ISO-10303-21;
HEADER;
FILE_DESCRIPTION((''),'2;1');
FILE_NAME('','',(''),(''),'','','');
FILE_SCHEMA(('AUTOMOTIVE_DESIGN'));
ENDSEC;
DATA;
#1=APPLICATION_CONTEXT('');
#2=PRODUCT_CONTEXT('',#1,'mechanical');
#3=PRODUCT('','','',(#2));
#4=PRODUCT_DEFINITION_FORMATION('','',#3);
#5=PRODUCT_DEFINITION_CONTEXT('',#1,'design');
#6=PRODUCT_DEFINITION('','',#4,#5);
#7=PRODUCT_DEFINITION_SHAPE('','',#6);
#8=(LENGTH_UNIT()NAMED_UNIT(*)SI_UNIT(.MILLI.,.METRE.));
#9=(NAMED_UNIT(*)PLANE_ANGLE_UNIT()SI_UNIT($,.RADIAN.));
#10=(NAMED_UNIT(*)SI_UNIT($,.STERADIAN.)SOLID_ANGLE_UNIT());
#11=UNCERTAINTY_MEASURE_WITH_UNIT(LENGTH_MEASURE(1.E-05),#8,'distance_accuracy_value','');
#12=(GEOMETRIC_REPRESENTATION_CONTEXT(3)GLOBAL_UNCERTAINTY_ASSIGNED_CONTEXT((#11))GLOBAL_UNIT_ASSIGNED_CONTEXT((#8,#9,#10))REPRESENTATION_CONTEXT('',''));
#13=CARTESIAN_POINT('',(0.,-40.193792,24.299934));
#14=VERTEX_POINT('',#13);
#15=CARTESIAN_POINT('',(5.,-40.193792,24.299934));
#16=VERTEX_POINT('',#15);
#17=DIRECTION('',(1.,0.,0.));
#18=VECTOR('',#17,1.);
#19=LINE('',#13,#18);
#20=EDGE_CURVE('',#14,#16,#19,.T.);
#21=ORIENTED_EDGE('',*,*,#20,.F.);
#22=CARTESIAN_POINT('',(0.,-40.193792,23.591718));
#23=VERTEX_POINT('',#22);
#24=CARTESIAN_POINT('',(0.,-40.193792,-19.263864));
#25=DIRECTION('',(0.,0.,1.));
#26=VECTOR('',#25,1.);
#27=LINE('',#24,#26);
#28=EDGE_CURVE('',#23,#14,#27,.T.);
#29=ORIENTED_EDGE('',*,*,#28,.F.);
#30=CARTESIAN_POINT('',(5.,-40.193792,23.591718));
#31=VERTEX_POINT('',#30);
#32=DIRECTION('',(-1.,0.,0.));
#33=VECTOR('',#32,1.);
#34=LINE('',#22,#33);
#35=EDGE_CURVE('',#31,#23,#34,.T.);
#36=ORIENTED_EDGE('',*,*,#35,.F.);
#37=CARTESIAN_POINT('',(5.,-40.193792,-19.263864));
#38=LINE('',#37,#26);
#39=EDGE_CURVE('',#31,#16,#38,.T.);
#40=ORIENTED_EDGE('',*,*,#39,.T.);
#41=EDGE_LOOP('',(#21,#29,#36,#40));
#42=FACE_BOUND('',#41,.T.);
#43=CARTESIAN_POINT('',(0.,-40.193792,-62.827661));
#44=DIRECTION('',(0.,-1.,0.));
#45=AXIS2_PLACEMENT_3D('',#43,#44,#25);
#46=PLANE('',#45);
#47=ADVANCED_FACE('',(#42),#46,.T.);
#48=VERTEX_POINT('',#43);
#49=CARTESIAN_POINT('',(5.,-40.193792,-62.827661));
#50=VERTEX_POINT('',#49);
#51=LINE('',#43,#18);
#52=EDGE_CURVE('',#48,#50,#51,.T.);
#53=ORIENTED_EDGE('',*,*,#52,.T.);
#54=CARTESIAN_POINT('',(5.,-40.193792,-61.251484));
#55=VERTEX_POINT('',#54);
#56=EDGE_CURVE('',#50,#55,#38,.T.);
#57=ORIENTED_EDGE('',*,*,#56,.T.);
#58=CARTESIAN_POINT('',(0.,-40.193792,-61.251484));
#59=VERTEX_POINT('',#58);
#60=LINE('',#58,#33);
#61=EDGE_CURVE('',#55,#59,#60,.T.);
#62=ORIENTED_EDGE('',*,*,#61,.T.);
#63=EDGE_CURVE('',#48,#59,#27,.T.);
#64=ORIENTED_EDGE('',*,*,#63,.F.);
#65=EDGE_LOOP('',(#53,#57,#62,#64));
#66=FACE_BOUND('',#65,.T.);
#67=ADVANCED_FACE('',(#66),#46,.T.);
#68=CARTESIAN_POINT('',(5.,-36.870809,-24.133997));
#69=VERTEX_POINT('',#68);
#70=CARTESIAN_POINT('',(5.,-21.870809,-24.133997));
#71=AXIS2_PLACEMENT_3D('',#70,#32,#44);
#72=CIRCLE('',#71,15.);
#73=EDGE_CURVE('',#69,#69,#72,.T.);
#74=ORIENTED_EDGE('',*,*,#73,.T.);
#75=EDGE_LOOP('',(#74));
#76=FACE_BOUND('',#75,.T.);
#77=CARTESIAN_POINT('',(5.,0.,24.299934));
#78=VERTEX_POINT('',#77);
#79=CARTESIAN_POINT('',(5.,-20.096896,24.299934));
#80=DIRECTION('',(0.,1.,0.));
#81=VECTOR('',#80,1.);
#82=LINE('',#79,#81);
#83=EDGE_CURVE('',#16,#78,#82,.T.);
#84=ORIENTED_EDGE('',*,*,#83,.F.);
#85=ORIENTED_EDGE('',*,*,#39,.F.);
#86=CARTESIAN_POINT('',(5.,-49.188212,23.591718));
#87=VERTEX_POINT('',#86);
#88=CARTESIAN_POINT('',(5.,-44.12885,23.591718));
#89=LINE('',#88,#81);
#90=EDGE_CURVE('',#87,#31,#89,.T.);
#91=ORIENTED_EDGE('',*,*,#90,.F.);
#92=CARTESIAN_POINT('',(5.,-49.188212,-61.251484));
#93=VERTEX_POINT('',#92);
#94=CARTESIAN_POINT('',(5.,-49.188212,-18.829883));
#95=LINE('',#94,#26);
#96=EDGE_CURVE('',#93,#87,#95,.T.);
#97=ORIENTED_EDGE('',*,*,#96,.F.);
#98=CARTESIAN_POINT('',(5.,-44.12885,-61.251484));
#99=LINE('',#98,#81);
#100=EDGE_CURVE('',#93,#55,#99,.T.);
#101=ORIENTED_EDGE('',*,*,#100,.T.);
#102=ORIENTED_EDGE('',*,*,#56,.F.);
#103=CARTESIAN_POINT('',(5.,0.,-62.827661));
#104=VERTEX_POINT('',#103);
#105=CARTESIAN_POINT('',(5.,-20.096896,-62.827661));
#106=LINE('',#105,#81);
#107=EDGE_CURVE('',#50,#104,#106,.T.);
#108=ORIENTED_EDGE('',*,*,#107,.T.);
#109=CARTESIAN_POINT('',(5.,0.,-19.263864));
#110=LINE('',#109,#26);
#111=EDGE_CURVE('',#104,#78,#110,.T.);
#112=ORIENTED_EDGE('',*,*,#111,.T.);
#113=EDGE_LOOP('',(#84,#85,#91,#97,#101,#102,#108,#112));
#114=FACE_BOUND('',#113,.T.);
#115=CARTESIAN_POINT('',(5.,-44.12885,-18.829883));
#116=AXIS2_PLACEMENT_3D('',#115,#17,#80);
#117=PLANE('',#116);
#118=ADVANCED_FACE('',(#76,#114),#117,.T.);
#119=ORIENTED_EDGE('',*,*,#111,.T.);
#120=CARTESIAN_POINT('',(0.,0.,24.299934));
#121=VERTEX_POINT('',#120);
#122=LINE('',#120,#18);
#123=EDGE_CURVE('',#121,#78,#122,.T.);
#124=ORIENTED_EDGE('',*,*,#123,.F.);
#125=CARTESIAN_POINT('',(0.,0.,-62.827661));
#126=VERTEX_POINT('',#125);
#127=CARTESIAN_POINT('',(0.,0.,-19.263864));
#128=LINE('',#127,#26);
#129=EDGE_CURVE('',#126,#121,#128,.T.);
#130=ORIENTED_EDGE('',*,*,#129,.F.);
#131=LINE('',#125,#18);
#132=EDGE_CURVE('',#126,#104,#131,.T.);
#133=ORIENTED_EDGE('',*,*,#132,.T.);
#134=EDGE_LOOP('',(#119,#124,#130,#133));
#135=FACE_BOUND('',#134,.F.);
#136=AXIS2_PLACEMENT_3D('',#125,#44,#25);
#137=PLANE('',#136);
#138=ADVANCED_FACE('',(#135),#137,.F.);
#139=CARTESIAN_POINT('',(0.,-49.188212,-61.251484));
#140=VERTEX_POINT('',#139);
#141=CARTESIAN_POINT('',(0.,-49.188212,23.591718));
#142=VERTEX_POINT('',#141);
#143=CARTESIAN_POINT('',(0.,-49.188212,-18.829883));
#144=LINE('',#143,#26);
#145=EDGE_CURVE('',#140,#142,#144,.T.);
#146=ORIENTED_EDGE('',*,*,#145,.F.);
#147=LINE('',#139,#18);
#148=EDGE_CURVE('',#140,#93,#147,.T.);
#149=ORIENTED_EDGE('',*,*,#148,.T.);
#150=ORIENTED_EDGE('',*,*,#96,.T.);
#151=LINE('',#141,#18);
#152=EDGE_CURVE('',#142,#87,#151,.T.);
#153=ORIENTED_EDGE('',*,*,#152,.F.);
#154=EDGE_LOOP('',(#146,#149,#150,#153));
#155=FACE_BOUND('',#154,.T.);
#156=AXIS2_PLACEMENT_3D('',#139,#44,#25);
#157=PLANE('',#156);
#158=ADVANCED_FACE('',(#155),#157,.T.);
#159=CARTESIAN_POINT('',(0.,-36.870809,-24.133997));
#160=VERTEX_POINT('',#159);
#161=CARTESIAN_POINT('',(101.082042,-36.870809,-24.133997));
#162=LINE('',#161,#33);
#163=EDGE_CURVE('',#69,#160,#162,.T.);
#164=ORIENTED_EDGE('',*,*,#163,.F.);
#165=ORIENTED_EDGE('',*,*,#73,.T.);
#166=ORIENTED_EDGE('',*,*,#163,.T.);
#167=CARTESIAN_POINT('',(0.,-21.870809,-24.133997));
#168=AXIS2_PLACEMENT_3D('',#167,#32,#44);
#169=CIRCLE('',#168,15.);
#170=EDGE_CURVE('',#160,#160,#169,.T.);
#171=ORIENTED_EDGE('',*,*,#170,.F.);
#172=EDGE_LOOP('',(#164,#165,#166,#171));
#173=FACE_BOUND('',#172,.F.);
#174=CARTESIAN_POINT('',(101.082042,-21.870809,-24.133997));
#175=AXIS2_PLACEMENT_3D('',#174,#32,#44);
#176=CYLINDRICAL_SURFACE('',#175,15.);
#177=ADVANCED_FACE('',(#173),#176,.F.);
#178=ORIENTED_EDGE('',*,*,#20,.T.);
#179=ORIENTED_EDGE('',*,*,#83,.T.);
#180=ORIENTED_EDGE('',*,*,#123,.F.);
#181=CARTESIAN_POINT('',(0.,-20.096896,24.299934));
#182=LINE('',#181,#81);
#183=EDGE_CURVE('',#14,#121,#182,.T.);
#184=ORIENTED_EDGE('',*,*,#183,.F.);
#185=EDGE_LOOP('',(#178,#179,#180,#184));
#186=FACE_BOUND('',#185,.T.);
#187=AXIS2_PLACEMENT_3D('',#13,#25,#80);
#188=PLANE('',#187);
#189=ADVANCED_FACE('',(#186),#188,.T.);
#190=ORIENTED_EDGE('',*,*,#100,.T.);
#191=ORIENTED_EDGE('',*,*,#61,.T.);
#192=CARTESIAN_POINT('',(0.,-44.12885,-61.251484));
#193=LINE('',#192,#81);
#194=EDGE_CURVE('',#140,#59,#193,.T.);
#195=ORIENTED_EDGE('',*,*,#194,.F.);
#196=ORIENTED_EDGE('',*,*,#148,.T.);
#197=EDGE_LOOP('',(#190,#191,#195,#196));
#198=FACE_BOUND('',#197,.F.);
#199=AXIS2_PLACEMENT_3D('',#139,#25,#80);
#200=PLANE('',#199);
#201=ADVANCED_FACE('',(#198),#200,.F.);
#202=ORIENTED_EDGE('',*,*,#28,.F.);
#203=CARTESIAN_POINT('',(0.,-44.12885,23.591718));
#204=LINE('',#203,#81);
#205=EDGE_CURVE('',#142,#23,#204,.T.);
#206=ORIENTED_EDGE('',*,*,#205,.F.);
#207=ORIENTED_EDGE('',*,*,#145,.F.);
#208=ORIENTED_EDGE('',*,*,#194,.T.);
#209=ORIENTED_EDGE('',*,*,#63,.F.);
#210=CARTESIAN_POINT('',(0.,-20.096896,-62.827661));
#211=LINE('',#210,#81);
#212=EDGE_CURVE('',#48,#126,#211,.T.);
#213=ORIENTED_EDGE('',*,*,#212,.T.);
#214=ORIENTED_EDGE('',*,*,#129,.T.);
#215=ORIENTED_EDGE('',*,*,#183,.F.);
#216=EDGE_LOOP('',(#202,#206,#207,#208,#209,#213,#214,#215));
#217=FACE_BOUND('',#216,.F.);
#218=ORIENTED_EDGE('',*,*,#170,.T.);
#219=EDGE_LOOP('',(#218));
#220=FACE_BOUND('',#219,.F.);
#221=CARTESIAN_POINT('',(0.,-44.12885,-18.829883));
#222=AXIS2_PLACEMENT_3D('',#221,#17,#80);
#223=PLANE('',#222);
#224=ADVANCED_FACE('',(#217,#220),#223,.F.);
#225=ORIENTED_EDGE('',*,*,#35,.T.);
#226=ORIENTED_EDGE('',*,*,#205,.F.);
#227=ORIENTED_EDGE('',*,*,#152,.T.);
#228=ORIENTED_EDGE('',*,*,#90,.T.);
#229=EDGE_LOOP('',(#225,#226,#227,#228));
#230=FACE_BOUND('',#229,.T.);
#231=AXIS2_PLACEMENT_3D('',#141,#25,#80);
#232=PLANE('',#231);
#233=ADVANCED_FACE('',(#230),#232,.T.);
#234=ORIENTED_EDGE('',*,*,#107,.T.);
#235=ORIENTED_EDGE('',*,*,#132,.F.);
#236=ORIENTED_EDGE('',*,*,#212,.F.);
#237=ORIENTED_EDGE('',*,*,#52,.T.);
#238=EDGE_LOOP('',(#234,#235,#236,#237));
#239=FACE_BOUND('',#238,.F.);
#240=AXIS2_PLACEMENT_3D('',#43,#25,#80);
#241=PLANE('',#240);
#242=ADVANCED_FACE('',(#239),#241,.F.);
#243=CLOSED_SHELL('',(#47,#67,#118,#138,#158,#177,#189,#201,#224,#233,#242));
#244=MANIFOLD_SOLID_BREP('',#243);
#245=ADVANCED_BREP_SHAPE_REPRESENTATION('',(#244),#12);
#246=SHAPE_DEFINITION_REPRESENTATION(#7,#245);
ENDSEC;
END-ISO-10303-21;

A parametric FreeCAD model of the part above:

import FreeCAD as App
import Part
import Sketcher

doc = App.newDocument("Part")
body = doc.addObject("PartDesign::Body", "Body")

sketch1 = body.newObject("Sketcher::SketchObject", "Sketch")
sketch1.AttachmentSupport = (doc.getObject("YZ_Plane"), [""])
sketch1.MapMode = "FlatFace"
sketch1.addGeometry(Part.LineSegment(App.Vector(-40, 24, 0), App.Vector(-40, -63, 0)), False)
sketch1.addGeometry(Part.LineSegment(App.Vector(-40, -63, 0), App.Vector(0, -63, 0)), False)
sketch1.addGeometry(Part.LineSegment(App.Vector(0, -63, 0), App.Vector(0, 24, 0)), False)
sketch1.addGeometry(Part.LineSegment(App.Vector(0, 24, 0), App.Vector(-40, 24, 0)), False)
sketch1.addConstraint(Sketcher.Constraint("Coincident", 0, 2, 1, 1))
sketch1.addConstraint(Sketcher.Constraint("Coincident", 1, 2, 2, 1))
sketch1.addConstraint(Sketcher.Constraint("Coincident", 2, 2, 3, 1))
sketch1.addConstraint(Sketcher.Constraint("Coincident", 3, 2, 0, 1))
sketch1.addConstraint(Sketcher.Constraint("Vertical", 0))
sketch1.addConstraint(Sketcher.Constraint("Horizontal", 1))
sketch1.addConstraint(Sketcher.Constraint("Vertical", 2))
sketch1.addConstraint(Sketcher.Constraint("Horizontal", 3))
sketch1.addConstraint(Sketcher.Constraint("PointOnObject", 1, 2, -2))
sketch1.addConstraint(Sketcher.Constraint("DistanceX", 1, 1, 1, 2, 40.193792))
sketch1.addConstraint(Sketcher.Constraint("DistanceY", 0, 2, 0, 1, 87.127595))
sketch1.addConstraint(Sketcher.Constraint("DistanceY", 0, 2, -1, 1, 62.827661))
pad1 = body.newObject("PartDesign::Pad", "Pad")
pad1.Profile = sketch1
pad1.Length = 5

sketch2 = body.newObject("Sketcher::SketchObject", "Sketch001")
sketch2.AttachmentSupport = (doc.getObject("YZ_Plane"), [""])
sketch2.MapMode = "FlatFace"
sketch2.AttachmentOffset = App.Placement(App.Vector(0, 0, 5), App.Rotation())
sketch2.addGeometry(Part.Circle(App.Vector(-22, -24, 0), App.Vector(0, 0, 1), 15), False)
sketch2.addConstraint(Sketcher.Constraint("Diameter", 0, 30.0))
sketch2.addConstraint(Sketcher.Constraint("DistanceX", 0, 3, -1, 1, 21.870809))
sketch2.addConstraint(Sketcher.Constraint("DistanceY", 0, 3, -1, 1, 24.133997))
doc.recompute()
hole = body.newObject("PartDesign::Hole", "Hole")
hole.Profile = sketch2
hole.ThreadType = "None"
hole.Diameter = 30
hole.DepthType = "ThroughAll"

sketch3 = body.newObject("Sketcher::SketchObject", "Sketch002")
sketch3.AttachmentSupport = (doc.getObject("YZ_Plane"), [""])
sketch3.MapMode = "FlatFace"
sketch3.addGeometry(Part.LineSegment(App.Vector(-49, 24, 0), App.Vector(-49, -61, 0)), False)
sketch3.addGeometry(Part.LineSegment(App.Vector(-49, -61, 0), App.Vector(-39, -61, 0)), False)
sketch3.addGeometry(Part.LineSegment(App.Vector(-39, -61, 0), App.Vector(-39, 24, 0)), False)
sketch3.addGeometry(Part.LineSegment(App.Vector(-39, 24, 0), App.Vector(-49, 24, 0)), False)
sketch3.addConstraint(Sketcher.Constraint("Coincident", 0, 2, 1, 1))
sketch3.addConstraint(Sketcher.Constraint("Coincident", 1, 2, 2, 1))
sketch3.addConstraint(Sketcher.Constraint("Coincident", 2, 2, 3, 1))
sketch3.addConstraint(Sketcher.Constraint("Coincident", 3, 2, 0, 1))
sketch3.addConstraint(Sketcher.Constraint("Vertical", 0))
sketch3.addConstraint(Sketcher.Constraint("Horizontal", 1))
sketch3.addConstraint(Sketcher.Constraint("Vertical", 2))
sketch3.addConstraint(Sketcher.Constraint("Horizontal", 3))
sketch3.addConstraint(Sketcher.Constraint("DistanceY", 0, 2, 0, 1, 84.843202))
sketch3.addConstraint(Sketcher.Constraint("DistanceX", 1, 1, 1, 2, 10.118723))
sketch3.addConstraint(Sketcher.Constraint("DistanceX", 0, 2, -1, 1, 49.188212))
sketch3.addConstraint(Sketcher.Constraint("DistanceY", -1, 1, 2, 2, 23.591718))
pad2 = body.newObject("PartDesign::Pad", "Pad001")
pad2.Profile = sketch3
pad2.Length = 5

doc.recompute()
